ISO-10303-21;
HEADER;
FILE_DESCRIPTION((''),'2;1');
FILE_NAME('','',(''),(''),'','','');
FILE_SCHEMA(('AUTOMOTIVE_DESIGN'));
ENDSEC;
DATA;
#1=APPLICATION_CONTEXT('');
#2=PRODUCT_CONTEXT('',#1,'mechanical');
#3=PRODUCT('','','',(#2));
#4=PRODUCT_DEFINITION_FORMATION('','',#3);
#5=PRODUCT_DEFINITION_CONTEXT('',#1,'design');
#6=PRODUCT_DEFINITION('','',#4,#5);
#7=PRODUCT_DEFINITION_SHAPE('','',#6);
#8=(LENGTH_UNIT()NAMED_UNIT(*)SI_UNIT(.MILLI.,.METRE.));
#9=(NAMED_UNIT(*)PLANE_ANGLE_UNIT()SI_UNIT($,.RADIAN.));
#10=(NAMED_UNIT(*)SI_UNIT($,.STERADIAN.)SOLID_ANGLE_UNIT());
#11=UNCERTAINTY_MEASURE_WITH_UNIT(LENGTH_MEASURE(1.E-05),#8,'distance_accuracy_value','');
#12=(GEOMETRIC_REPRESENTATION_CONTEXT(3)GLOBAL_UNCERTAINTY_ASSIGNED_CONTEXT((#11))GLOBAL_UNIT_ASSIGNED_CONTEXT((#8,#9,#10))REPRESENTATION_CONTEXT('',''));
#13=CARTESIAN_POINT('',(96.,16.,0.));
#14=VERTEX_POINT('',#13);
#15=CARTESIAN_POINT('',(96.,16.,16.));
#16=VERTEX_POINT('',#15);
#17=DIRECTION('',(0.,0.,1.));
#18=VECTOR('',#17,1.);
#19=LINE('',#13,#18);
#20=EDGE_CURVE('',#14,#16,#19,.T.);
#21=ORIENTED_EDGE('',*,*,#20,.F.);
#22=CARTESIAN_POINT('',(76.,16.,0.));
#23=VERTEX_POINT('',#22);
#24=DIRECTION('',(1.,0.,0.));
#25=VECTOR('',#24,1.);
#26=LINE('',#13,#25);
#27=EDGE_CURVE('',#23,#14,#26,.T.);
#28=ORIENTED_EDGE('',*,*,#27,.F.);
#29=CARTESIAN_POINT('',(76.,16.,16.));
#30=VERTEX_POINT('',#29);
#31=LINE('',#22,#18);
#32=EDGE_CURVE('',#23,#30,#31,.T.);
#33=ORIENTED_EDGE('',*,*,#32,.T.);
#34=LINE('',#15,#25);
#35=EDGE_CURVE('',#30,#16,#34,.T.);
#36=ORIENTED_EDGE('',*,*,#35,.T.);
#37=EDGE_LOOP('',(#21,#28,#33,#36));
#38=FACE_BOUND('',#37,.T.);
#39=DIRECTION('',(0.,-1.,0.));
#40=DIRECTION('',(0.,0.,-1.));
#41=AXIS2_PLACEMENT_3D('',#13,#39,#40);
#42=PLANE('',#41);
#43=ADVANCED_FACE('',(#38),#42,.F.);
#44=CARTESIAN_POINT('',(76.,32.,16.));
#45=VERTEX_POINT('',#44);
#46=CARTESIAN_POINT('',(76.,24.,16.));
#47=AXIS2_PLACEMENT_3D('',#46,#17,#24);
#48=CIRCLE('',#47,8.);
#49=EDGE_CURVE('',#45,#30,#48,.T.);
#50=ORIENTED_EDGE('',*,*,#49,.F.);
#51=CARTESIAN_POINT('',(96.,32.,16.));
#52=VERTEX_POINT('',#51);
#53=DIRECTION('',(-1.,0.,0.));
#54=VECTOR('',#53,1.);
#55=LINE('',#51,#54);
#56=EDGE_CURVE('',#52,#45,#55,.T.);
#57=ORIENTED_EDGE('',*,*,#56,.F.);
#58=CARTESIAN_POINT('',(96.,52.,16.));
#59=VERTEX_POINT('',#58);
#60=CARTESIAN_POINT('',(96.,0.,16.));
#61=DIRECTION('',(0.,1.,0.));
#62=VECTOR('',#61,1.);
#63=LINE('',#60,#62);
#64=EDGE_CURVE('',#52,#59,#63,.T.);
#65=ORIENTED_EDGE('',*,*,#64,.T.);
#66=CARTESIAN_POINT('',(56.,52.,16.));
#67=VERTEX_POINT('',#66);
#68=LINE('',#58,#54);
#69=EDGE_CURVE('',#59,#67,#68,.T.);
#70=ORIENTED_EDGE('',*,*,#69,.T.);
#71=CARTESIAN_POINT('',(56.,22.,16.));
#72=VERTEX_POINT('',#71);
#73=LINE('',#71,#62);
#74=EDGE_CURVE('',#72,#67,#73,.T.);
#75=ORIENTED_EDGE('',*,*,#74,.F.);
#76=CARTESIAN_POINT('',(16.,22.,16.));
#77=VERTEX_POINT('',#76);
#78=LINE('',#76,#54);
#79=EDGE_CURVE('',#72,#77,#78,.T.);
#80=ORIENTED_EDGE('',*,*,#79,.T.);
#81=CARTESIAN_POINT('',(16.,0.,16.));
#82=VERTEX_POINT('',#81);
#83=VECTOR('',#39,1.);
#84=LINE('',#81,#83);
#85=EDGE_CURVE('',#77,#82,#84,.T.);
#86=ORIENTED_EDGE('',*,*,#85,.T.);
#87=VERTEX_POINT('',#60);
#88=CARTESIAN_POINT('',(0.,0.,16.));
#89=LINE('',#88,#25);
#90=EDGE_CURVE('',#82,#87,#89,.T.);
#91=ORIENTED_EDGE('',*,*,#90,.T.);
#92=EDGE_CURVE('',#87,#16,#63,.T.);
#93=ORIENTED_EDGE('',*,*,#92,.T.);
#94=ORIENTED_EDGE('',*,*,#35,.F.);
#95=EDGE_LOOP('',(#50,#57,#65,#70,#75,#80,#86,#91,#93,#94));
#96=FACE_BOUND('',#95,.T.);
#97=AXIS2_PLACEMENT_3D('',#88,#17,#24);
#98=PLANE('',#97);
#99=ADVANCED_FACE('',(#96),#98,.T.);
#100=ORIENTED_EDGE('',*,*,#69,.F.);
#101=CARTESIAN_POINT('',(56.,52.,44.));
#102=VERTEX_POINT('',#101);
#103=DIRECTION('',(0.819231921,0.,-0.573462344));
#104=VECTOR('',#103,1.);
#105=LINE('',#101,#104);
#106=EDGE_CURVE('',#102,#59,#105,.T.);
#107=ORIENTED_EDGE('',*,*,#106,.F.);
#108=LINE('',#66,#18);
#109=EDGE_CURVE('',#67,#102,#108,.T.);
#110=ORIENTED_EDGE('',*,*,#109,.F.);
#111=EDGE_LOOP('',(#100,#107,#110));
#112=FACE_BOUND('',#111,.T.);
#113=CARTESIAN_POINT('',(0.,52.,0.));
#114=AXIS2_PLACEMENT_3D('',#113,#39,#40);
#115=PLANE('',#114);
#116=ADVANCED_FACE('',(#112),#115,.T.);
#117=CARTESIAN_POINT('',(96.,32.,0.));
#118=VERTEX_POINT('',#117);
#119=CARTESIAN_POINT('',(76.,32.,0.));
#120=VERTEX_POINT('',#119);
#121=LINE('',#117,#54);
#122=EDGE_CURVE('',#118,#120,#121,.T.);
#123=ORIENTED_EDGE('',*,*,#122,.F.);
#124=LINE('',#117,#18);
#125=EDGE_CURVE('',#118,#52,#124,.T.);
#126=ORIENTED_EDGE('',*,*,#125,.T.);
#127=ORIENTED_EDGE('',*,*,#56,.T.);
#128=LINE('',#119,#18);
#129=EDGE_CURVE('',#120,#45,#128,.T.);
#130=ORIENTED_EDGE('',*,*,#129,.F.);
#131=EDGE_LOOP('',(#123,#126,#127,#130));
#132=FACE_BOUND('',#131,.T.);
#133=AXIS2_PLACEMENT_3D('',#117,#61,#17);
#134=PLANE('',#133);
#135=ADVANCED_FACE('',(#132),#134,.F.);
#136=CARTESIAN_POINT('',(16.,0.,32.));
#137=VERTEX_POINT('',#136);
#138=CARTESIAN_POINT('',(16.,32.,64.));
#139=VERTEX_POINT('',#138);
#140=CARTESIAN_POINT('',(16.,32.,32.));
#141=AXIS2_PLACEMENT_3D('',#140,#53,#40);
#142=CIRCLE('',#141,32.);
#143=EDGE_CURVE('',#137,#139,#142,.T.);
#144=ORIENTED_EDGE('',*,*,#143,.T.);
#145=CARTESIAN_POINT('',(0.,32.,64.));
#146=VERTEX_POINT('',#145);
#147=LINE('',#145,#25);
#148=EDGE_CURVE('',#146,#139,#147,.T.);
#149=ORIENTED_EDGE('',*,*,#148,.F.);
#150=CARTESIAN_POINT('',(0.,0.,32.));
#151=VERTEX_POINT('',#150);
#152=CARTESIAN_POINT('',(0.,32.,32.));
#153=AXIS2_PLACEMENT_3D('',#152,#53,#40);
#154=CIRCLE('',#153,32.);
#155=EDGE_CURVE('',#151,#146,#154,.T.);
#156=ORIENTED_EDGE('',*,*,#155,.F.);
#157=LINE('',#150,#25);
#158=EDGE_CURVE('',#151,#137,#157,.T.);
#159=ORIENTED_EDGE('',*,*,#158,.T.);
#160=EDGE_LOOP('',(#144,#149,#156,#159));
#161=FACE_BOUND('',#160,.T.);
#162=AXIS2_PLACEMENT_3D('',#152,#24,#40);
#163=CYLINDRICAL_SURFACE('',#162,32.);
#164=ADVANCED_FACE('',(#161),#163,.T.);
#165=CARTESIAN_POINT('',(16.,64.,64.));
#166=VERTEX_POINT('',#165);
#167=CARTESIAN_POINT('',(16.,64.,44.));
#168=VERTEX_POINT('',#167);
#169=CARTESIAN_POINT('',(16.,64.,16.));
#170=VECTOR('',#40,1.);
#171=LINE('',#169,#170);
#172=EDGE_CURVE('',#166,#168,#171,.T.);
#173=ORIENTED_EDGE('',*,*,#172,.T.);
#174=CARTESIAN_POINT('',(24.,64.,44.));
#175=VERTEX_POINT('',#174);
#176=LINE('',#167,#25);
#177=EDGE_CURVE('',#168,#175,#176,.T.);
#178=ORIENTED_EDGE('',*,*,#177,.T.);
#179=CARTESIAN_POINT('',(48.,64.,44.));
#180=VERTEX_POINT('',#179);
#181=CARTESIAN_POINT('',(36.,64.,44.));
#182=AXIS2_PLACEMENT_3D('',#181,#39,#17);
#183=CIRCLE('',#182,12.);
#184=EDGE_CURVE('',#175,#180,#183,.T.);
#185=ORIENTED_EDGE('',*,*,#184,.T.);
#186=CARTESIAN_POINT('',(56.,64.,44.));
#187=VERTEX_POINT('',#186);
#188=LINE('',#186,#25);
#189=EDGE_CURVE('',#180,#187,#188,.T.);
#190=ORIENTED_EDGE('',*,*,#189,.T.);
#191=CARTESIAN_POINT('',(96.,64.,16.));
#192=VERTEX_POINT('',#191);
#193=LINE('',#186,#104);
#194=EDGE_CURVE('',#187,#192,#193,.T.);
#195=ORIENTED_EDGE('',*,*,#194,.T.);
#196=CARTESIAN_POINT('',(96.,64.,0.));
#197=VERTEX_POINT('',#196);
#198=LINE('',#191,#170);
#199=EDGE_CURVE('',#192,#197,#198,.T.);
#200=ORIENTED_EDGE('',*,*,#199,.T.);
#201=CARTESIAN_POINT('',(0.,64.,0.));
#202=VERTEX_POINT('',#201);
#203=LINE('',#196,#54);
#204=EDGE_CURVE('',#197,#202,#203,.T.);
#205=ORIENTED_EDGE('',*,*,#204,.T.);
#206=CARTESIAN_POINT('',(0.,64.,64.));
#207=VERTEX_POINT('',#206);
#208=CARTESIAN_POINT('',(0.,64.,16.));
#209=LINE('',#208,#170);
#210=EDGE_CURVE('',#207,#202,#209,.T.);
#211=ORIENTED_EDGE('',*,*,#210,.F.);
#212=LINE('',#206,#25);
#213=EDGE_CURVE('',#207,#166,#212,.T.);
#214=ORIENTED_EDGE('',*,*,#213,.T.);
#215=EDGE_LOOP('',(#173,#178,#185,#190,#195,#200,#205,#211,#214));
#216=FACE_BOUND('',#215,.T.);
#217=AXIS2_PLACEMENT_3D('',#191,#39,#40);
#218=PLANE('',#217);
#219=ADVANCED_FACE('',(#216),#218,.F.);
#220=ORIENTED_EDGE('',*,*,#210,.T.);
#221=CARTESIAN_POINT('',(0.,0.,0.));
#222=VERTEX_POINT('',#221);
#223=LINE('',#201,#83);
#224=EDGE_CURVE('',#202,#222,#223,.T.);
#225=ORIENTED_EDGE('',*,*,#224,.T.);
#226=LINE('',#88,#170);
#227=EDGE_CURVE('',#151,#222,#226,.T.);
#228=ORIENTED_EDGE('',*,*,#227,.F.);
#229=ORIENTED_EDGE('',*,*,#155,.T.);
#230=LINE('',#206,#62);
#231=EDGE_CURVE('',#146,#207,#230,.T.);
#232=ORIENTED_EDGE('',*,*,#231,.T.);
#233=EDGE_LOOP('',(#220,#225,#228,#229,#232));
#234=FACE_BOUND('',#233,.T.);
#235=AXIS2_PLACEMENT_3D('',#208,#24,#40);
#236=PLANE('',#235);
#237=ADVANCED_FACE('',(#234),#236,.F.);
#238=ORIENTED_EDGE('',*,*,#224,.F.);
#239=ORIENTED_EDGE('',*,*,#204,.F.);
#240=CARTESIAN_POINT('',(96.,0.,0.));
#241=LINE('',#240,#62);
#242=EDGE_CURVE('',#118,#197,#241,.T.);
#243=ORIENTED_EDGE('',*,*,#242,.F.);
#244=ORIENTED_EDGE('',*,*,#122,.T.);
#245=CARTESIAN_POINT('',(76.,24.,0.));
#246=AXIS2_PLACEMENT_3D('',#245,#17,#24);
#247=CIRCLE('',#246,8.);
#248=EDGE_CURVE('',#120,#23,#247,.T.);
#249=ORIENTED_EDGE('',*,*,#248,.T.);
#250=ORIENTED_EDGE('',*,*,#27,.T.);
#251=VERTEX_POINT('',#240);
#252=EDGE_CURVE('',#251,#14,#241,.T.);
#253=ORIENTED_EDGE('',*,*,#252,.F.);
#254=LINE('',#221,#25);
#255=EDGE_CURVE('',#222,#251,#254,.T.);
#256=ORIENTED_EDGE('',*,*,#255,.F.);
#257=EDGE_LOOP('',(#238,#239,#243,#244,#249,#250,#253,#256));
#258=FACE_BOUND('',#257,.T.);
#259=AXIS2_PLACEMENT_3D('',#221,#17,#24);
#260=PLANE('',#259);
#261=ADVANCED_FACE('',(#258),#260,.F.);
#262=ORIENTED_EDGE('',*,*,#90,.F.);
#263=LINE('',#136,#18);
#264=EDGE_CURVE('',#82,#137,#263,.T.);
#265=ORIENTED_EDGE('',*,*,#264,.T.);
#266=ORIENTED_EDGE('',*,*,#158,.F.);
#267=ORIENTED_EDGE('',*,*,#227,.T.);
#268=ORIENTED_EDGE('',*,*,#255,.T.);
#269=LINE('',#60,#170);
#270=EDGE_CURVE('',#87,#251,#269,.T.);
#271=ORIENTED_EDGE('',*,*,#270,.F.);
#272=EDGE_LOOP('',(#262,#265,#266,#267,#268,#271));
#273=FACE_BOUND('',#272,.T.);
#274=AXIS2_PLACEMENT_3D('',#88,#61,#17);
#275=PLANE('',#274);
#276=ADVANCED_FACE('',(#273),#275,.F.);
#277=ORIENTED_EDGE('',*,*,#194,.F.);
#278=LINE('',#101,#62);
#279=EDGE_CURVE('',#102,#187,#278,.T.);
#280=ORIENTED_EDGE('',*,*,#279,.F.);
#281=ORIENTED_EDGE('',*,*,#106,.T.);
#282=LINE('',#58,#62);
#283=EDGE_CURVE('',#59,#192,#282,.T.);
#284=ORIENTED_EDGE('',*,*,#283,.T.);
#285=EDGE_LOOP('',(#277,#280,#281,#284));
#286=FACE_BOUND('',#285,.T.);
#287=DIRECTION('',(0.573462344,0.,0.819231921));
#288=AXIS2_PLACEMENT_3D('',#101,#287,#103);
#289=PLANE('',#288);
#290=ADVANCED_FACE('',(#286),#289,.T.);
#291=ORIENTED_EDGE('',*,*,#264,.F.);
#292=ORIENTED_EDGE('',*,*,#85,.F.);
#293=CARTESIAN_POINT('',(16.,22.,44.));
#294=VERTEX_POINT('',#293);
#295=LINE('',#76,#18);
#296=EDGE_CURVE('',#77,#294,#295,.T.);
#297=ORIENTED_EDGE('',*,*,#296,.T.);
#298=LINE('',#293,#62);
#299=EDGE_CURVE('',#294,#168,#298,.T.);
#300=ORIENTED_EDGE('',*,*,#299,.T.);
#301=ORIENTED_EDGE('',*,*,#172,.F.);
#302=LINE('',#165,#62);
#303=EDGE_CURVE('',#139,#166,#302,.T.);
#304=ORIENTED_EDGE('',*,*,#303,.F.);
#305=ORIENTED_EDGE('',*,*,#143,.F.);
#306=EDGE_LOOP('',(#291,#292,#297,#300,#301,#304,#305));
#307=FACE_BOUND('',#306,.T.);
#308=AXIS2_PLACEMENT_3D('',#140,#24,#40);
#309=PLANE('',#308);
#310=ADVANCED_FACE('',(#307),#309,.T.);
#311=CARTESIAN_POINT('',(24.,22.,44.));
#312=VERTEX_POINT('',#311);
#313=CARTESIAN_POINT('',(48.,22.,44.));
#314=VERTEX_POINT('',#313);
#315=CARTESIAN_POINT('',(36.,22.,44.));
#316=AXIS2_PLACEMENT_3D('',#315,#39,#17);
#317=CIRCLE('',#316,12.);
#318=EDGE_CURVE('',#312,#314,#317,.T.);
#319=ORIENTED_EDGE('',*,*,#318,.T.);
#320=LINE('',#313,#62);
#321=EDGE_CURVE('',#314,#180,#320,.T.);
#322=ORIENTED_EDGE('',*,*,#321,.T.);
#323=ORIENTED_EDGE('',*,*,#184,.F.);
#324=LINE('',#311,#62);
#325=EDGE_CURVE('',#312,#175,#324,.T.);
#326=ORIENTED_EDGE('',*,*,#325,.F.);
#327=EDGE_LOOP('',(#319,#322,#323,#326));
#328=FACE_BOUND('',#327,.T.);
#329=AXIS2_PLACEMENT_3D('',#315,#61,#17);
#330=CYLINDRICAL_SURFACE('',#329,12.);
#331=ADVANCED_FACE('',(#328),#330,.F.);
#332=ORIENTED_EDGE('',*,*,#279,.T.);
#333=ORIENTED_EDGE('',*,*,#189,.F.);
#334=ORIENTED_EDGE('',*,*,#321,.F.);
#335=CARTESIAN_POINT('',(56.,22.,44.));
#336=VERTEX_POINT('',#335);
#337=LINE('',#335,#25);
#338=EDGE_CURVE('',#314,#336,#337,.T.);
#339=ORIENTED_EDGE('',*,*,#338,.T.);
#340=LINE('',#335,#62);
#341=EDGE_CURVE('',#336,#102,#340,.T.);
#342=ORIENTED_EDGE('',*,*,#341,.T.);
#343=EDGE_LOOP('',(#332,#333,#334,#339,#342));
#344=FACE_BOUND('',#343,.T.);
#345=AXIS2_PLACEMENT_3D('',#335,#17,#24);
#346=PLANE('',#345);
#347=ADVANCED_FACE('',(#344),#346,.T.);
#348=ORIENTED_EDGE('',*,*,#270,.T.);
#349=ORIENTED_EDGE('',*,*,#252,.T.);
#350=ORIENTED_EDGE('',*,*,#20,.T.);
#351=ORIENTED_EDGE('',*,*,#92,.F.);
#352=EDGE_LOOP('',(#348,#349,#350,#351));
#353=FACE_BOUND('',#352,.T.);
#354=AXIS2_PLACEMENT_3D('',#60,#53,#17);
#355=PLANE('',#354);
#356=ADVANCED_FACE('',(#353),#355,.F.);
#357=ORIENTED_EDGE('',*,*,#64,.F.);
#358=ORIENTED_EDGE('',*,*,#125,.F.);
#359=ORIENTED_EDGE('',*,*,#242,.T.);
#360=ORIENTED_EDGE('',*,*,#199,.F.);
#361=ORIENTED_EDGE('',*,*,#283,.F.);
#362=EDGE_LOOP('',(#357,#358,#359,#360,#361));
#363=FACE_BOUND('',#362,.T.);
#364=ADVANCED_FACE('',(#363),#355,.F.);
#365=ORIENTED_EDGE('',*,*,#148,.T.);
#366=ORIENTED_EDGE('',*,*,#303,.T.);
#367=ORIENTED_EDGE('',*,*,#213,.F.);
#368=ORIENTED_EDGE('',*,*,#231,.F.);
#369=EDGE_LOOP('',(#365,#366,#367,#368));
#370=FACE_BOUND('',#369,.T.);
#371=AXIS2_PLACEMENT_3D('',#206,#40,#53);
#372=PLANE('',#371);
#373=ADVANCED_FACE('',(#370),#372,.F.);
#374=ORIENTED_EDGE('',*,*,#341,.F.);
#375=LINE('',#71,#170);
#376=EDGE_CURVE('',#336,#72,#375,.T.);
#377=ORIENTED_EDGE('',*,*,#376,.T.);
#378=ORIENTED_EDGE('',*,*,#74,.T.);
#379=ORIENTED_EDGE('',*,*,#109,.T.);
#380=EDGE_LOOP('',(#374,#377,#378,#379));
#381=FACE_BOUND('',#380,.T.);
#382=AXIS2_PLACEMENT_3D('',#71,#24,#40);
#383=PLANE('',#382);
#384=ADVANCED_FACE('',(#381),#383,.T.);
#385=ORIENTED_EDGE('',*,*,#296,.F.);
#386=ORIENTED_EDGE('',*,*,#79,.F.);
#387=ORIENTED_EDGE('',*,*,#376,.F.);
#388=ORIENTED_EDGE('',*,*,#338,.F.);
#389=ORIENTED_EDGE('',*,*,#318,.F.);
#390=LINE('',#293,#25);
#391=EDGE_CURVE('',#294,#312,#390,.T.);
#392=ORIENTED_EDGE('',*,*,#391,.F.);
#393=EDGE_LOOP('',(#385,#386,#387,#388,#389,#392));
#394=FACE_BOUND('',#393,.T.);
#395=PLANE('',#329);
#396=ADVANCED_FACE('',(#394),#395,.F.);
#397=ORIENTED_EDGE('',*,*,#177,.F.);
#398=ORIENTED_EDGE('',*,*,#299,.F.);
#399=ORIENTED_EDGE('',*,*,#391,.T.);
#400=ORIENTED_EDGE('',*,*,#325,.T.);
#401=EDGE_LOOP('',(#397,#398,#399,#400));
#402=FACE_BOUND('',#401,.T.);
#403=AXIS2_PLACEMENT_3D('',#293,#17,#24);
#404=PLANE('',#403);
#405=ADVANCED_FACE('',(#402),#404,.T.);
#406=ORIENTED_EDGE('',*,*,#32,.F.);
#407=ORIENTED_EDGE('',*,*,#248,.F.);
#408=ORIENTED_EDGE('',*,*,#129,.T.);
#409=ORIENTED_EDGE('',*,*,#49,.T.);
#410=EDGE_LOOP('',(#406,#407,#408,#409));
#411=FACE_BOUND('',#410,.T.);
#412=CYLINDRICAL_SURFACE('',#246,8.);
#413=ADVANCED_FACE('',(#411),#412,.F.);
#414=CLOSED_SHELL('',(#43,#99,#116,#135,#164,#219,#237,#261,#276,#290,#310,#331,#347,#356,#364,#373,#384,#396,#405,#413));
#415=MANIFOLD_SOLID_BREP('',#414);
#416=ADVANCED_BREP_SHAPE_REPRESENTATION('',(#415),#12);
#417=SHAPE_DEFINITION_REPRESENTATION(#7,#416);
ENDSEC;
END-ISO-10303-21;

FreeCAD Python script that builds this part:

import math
import FreeCAD as App
import Part
import Sketcher

V = App.Vector


def add_polygon(sketch, points):
    """Adds a closed chain of lines whose ends are joined by coincident constraints."""
    first, n = sketch.GeometryCount, len(points)
    for a, b in zip(points, points[1:] + points[:1]):
        sketch.addGeometry(Part.LineSegment(App.Vector(*a, 0), App.Vector(*b, 0)), False)
    for i in range(n):
        sketch.addConstraint(Sketcher.Constraint("Coincident", first + i, 2, first + (i + 1) % n, 1))

doc = App.newDocument("Part")
body = doc.addObject("PartDesign::Body", "Body")

sketch1 = doc.addObject("Sketcher::SketchObject", "Sketch")
body.addObject(sketch1)
sketch1.AttachmentSupport = (doc.XY_Plane, [""])
sketch1.MapMode = "FlatFace"
add_polygon(sketch1, [(0, 64), (0, 0), (96, 0), (96, 64)])
sketch1.addConstraint([
    Sketcher.Constraint("Vertical", 0),
    Sketcher.Constraint("Horizontal", 1),
    Sketcher.Constraint("Vertical", 2),
    Sketcher.Constraint("Horizontal", 3),
    Sketcher.Constraint("Coincident", 0, 2, -1, 1),
    Sketcher.Constraint("DistanceX", 1, 1, 1, 2, 96.0),
    Sketcher.Constraint("DistanceY", 0, 2, 0, 1, 64.0),
])
pad1 = doc.addObject("PartDesign::Pad", "Pad")
body.addObject(pad1)
pad1.Profile = sketch1
pad1.Length = 16

sketch2 = doc.addObject("Sketcher::SketchObject", "Sketch001")
body.addObject(sketch2)
sketch2.AttachmentSupport = (doc.YZ_Plane, [""])
sketch2.MapMode = "FlatFace"
sketch2.AttachmentOffset = App.Placement(V(0, 0, 16), App.Rotation())
sketch2.addGeometry([
    Part.LineSegment(V(64, 16, 0), V(0, 16, 0)),
    Part.LineSegment(V(0, 16, 0), V(0, 32, 0)),
    Part.ArcOfCircle(Part.Circle(V(32, 32, 0), V(0, 0, 1), 32), math.radians(90), math.radians(180)),
    Part.LineSegment(V(32, 64, 0), V(64, 64, 0)),
    Part.LineSegment(V(64, 64, 0), V(64, 16, 0)),
], False)
sketch2.addConstraint([
    Sketcher.Constraint("Coincident", 0, 2, 1, 1),
    Sketcher.Constraint("Tangent", 1, 2, 2, 2),
    Sketcher.Constraint("Tangent", 2, 1, 3, 1),
    Sketcher.Constraint("Coincident", 3, 2, 4, 1),
    Sketcher.Constraint("Coincident", 4, 2, 0, 1),
    Sketcher.Constraint("Horizontal", 0),
    Sketcher.Constraint("Vertical", 1),
    Sketcher.Constraint("Horizontal", 3),
    Sketcher.Constraint("Vertical", 4),
    Sketcher.Constraint("PointOnObject", 0, 2, -2),
    Sketcher.Constraint("Radius", 2, 32.0),
    Sketcher.Constraint("DistanceX", 0, 2, 0, 1, 64.0),
    Sketcher.Constraint("DistanceY", 1, 1, 1, 2, 16.0),
    Sketcher.Constraint("DistanceY", -1, 1, 2, 3, 32.0),
])
pad2 = doc.addObject("PartDesign::Pad", "Pad001")
body.addObject(pad2)
pad2.Profile = sketch2
pad2.Length = 16
pad2.Reversed = True

sketch3 = doc.addObject("Sketcher::SketchObject", "Sketch002")
body.addObject(sketch3)
sketch3.AttachmentSupport = (doc.XZ_Plane, [""])
sketch3.MapMode = "FlatFace"
sketch3.AttachmentOffset = App.Placement(V(0, 0, -64), App.Rotation())
sketch3.addGeometry([
    Part.LineSegment(V(56, 16, 0), V(16, 16, 0)),
    Part.LineSegment(V(16, 16, 0), V(16, 44, 0)),
    Part.LineSegment(V(16, 44, 0), V(24, 44, 0)),
    Part.ArcOfCircle(Part.Circle(V(36, 44, 0), V(0, 0, 1), 12), math.radians(180), math.radians(360)),
    Part.LineSegment(V(48, 44, 0), V(56, 44, 0)),
    Part.LineSegment(V(56, 44, 0), V(56, 16, 0)),
], False)
sketch3.addConstraint([
    Sketcher.Constraint("Coincident", 0, 2, 1, 1),
    Sketcher.Constraint("Coincident", 1, 2, 2, 1),
    Sketcher.Constraint("Coincident", 2, 2, 3, 1),
    Sketcher.Constraint("Coincident", 3, 2, 4, 1),
    Sketcher.Constraint("Coincident", 4, 2, 5, 1),
    Sketcher.Constraint("Coincident", 5, 2, 0, 1),
    Sketcher.Constraint("Horizontal", 0),
    Sketcher.Constraint("Vertical", 1),
    Sketcher.Constraint("Horizontal", 2),
    Sketcher.Constraint("Horizontal", 4),
    Sketcher.Constraint("Vertical", 5),
    Sketcher.Constraint("Horizontal", 3, 3, 1, 2),
    Sketcher.Constraint("Horizontal", 2, 2, 3, 2),
    Sketcher.Constraint("Equal", 2, 4),
    Sketcher.Constraint("Radius", 3, 12.0),
    Sketcher.Constraint("DistanceX", 0, 2, 0, 1, 40.0),
    Sketcher.Constraint("DistanceY", 1, 1, 1, 2, 28.0),
    Sketcher.Constraint("DistanceX", -1, 1, 3, 3, 36.0),
    Sketcher.Constraint("DistanceY", -1, 1, 3, 3, 44.0),
])
pad3 = doc.addObject("PartDesign::Pad", "Pad002")
body.addObject(pad3)
pad3.Profile = sketch3
pad3.Length = 42

sketch4 = doc.addObject("Sketcher::SketchObject", "Sketch003")
body.addObject(sketch4)
sketch4.AttachmentSupport = (doc.XZ_Plane, [""])
sketch4.MapMode = "FlatFace"
sketch4.AttachmentOffset = App.Placement(V(0, 0, -64), App.Rotation())
add_polygon(sketch4, [(96, 16), (56, 16), (56, 44)])
sketch4.addConstraint([
    Sketcher.Constraint("Horizontal", 0),
    Sketcher.Constraint("Vertical", 1),
    Sketcher.Constraint("DistanceX", 0, 2, 0, 1, 40.0),
    Sketcher.Constraint("DistanceY", 1, 1, 1, 2, 28.0),
    Sketcher.Constraint("DistanceX", -1, 1, 0, 2, 56.0),
    Sketcher.Constraint("DistanceY", -1, 1, 0, 2, 16.0),
])
pad4 = doc.addObject("PartDesign::Pad", "Pad003")
body.addObject(pad4)
pad4.Profile = sketch4
pad4.Length = 12

sketch5 = doc.addObject("Sketcher::SketchObject", "Sketch004")
body.addObject(sketch5)
sketch5.AttachmentSupport = (doc.XY_Plane, [""])
sketch5.MapMode = "FlatFace"
sketch5.AttachmentOffset = App.Placement(V(0, 0, 16), App.Rotation())
sketch5.addGeometry([
    Part.LineSegment(V(96, 16, 0), V(96, 32, 0)),
    Part.LineSegment(V(96, 32, 0), V(76, 32, 0)),
    Part.ArcOfCircle(Part.Circle(V(76, 24, 0), V(0, 0, 1), 8), math.radians(90), math.radians(270)),
    Part.LineSegment(V(76, 16, 0), V(96, 16, 0)),
], False)
sketch5.addConstraint([
    Sketcher.Constraint("Coincident", 0, 2, 1, 1),
    Sketcher.Constraint("Tangent", 1, 2, 2, 1),
    Sketcher.Constraint("Tangent", 2, 2, 3, 1),
    Sketcher.Constraint("Coincident", 3, 2, 0, 1),
    Sketcher.Constraint("Vertical", 0),
    Sketcher.Constraint("Horizontal", 1),
    Sketcher.Constraint("Horizontal", 3),
    Sketcher.Constraint("Radius", 2, 8.0),
    Sketcher.Constraint("DistanceX", 1, 2, 1, 1, 20.0),
    Sketcher.Constraint("DistanceX", -1, 1, 2, 3, 76.0),
    Sketcher.Constraint("DistanceY", -1, 1, 2, 3, 24.0),
])
pocket1 = doc.addObject("PartDesign::Pocket", "Pocket")
body.addObject(pocket1)
pocket1.Profile = sketch5
pocket1.Length = 16

doc.recompute()
